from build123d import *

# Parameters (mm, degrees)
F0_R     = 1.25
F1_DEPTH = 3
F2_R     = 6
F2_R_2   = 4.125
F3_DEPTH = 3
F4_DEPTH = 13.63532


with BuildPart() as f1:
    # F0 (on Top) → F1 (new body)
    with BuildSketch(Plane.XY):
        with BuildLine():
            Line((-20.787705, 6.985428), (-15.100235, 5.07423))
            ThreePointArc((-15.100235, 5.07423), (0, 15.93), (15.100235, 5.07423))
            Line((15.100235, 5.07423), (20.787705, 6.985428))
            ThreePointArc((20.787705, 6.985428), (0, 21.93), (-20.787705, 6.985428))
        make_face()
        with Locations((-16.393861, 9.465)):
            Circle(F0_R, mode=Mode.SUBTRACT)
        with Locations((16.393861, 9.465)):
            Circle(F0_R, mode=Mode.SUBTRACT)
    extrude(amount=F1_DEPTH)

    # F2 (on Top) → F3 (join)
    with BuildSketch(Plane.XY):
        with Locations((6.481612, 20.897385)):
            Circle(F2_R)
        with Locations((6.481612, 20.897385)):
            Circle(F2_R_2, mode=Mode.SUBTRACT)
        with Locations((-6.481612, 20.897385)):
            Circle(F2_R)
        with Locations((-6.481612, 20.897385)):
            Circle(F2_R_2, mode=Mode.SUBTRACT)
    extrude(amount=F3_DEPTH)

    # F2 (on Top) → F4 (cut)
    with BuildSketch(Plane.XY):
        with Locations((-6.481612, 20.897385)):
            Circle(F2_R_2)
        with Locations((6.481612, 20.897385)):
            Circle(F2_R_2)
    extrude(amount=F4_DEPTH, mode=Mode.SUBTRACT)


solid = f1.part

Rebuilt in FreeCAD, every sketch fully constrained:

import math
import FreeCAD as App
import Part
import Sketcher

doc = App.newDocument("Part")
body = doc.addObject("PartDesign::Body", "Body")

sketch1 = body.newObject("Sketcher::SketchObject", "Sketch")
sketch1.AttachmentSupport = (doc.getObject("XY_Plane"), [""])
sketch1.MapMode = "FlatFace"
sketch1.addGeometry(Part.LineSegment(App.Vector(-20.8, 7, 0), App.Vector(-15.1, 5.1, 0)), False)
sketch1.addGeometry(Part.ArcOfCircle(Part.Circle(App.Vector(0, 0, 0), App.Vector(0, 0, 1), 15.9), math.radians(19), math.radians(161)), False)
sketch1.addGeometry(Part.LineSegment(App.Vector(15.1, 5.1, 0), App.Vector(20.8, 7, 0)), False)
sketch1.addGeometry(Part.ArcOfCircle(Part.Circle(App.Vector(0, 0, 0), App.Vector(0, 0, 1), 21.9), math.radians(19), math.radians(161)), False)
sketch1.addGeometry(Part.Circle(App.Vector(-16.4, 9.5, 0), App.Vector(0, 0, 1), 1.2), False)
sketch1.addGeometry(Part.Circle(App.Vector(16.4, 9.5, 0), App.Vector(0, 0, 1), 1.2), False)
sketch1.addConstraint(Sketcher.Constraint("Coincident", 0, 2, 1, 2))
sketch1.addConstraint(Sketcher.Constraint("Coincident", 1, 1, 2, 1))
sketch1.addConstraint(Sketcher.Constraint("Coincident", 2, 2, 3, 1))
sketch1.addConstraint(Sketcher.Constraint("Coincident", 3, 2, 0, 1))
sketch1.addConstraint(Sketcher.Constraint("Coincident", 1, 3, -1, 1))
sketch1.addConstraint(Sketcher.Constraint("Coincident", 3, 3, -1, 1))
sketch1.addConstraint(Sketcher.Constraint("Equal", 4, 5))
sketch1.addConstraint(Sketcher.Constraint("Symmetric", 4, 3, 5, 3, -2))
sketch1.addConstraint(Sketcher.Constraint("Horizontal", 0, 2, 1, 1))
sketch1.addConstraint(Sketcher.Constraint("Horizontal", 2, 2, 3, 2))
sketch1.addConstraint(Sketcher.Constraint("Diameter", 4, 2.5))
sketch1.addConstraint(Sketcher.Constraint("Radius", 1, 15.93))
sketch1.addConstraint(Sketcher.Constraint("Radius", 3, 21.929999))
sketch1.addConstraint(Sketcher.Constraint("DistanceY", -1, 1, 4, 3, 9.465))
sketch1.addConstraint(Sketcher.Constraint("DistanceY", 1, 1, 2, 2, 1.911198))
sketch1.addConstraint(Sketcher.Constraint("DistanceX", 4, 3, -1, 1, 16.393861))
sketch1.addConstraint(Sketcher.Constraint("DistanceY", -1, 1, 0, 2, 5.07423))
pad1 = body.newObject("PartDesign::Pad", "Pad")
pad1.Profile = sketch1
pad1.Length = 3

sketch2 = body.newObject("Sketcher::SketchObject", "Sketch001")
sketch2.AttachmentSupport = (doc.getObject("XY_Plane"), [""])
sketch2.MapMode = "FlatFace"
sketch2.addGeometry(Part.Circle(App.Vector(6.5, 20.9, 0), App.Vector(0, 0, 1), 6), False)
sketch2.addGeometry(Part.Circle(App.Vector(6.5, 20.9, 0), App.Vector(0, 0, 1), 4.1), False)
sketch2.addGeometry(Part.Circle(App.Vector(-6.5, 20.9, 0), App.Vector(0, 0, 1), 6), False)
sketch2.addGeometry(Part.Circle(App.Vector(-6.5, 20.9, 0), App.Vector(0, 0, 1), 4.1), False)
sketch2.addConstraint(Sketcher.Constraint("Coincident", 1, 3, 0, 3))
sketch2.addConstraint(Sketcher.Constraint("Coincident", 3, 3, 2, 3))
sketch2.addConstraint(Sketcher.Constraint("Equal", 0, 2))
sketch2.addConstraint(Sketcher.Constraint("Equal", 1, 3))
sketch2.addConstraint(Sketcher.Constraint("Symmetric", 0, 3, 2, 3, -2))
sketch2.addConstraint(Sketcher.Constraint("Diameter", 0, 12.0))
sketch2.addConstraint(Sketcher.Constraint("Diameter", 1, 8.25))
sketch2.addConstraint(Sketcher.Constraint("DistanceX", -1, 1, 0, 3, 6.481612))
sketch2.addConstraint(Sketcher.Constraint("DistanceY", -1, 1, 0, 3, 20.897385))
pad2 = body.newObject("PartDesign::Pad", "Pad001")
pad2.Profile = sketch2
pad2.Length = 3

sketch3 = body.newObject("Sketcher::SketchObject", "Sketch002")
sketch3.AttachmentSupport = (doc.getObject("XY_Plane"), [""])
sketch3.MapMode = "FlatFace"
sketch3.addGeometry(Part.Circle(App.Vector(-6.5, 20.9, 0), App.Vector(0, 0, 1), 4.1), False)
sketch3.addGeometry(Part.Circle(App.Vector(6.5, 20.9, 0), App.Vector(0, 0, 1), 4.1), False)
sketch3.addConstraint(Sketcher.Constraint("Equal", 0, 1))
sketch3.addConstraint(Sketcher.Constraint("Symmetric", 0, 3, 1, 3, -2))
sketch3.addConstraint(Sketcher.Constraint("Diameter", 0, 8.25))
sketch3.addConstraint(Sketcher.Constraint("DistanceX", 0, 3, -1, 1, 6.481612))
sketch3.addConstraint(Sketcher.Constraint("DistanceY", -1, 1, 0, 3, 20.897385))
pocket1 = body.newObject("PartDesign::Pocket", "Pocket")
pocket1.Profile = sketch3
pocket1.Length = 13.63532
pocket1.Reversed = True

doc.recompute()
